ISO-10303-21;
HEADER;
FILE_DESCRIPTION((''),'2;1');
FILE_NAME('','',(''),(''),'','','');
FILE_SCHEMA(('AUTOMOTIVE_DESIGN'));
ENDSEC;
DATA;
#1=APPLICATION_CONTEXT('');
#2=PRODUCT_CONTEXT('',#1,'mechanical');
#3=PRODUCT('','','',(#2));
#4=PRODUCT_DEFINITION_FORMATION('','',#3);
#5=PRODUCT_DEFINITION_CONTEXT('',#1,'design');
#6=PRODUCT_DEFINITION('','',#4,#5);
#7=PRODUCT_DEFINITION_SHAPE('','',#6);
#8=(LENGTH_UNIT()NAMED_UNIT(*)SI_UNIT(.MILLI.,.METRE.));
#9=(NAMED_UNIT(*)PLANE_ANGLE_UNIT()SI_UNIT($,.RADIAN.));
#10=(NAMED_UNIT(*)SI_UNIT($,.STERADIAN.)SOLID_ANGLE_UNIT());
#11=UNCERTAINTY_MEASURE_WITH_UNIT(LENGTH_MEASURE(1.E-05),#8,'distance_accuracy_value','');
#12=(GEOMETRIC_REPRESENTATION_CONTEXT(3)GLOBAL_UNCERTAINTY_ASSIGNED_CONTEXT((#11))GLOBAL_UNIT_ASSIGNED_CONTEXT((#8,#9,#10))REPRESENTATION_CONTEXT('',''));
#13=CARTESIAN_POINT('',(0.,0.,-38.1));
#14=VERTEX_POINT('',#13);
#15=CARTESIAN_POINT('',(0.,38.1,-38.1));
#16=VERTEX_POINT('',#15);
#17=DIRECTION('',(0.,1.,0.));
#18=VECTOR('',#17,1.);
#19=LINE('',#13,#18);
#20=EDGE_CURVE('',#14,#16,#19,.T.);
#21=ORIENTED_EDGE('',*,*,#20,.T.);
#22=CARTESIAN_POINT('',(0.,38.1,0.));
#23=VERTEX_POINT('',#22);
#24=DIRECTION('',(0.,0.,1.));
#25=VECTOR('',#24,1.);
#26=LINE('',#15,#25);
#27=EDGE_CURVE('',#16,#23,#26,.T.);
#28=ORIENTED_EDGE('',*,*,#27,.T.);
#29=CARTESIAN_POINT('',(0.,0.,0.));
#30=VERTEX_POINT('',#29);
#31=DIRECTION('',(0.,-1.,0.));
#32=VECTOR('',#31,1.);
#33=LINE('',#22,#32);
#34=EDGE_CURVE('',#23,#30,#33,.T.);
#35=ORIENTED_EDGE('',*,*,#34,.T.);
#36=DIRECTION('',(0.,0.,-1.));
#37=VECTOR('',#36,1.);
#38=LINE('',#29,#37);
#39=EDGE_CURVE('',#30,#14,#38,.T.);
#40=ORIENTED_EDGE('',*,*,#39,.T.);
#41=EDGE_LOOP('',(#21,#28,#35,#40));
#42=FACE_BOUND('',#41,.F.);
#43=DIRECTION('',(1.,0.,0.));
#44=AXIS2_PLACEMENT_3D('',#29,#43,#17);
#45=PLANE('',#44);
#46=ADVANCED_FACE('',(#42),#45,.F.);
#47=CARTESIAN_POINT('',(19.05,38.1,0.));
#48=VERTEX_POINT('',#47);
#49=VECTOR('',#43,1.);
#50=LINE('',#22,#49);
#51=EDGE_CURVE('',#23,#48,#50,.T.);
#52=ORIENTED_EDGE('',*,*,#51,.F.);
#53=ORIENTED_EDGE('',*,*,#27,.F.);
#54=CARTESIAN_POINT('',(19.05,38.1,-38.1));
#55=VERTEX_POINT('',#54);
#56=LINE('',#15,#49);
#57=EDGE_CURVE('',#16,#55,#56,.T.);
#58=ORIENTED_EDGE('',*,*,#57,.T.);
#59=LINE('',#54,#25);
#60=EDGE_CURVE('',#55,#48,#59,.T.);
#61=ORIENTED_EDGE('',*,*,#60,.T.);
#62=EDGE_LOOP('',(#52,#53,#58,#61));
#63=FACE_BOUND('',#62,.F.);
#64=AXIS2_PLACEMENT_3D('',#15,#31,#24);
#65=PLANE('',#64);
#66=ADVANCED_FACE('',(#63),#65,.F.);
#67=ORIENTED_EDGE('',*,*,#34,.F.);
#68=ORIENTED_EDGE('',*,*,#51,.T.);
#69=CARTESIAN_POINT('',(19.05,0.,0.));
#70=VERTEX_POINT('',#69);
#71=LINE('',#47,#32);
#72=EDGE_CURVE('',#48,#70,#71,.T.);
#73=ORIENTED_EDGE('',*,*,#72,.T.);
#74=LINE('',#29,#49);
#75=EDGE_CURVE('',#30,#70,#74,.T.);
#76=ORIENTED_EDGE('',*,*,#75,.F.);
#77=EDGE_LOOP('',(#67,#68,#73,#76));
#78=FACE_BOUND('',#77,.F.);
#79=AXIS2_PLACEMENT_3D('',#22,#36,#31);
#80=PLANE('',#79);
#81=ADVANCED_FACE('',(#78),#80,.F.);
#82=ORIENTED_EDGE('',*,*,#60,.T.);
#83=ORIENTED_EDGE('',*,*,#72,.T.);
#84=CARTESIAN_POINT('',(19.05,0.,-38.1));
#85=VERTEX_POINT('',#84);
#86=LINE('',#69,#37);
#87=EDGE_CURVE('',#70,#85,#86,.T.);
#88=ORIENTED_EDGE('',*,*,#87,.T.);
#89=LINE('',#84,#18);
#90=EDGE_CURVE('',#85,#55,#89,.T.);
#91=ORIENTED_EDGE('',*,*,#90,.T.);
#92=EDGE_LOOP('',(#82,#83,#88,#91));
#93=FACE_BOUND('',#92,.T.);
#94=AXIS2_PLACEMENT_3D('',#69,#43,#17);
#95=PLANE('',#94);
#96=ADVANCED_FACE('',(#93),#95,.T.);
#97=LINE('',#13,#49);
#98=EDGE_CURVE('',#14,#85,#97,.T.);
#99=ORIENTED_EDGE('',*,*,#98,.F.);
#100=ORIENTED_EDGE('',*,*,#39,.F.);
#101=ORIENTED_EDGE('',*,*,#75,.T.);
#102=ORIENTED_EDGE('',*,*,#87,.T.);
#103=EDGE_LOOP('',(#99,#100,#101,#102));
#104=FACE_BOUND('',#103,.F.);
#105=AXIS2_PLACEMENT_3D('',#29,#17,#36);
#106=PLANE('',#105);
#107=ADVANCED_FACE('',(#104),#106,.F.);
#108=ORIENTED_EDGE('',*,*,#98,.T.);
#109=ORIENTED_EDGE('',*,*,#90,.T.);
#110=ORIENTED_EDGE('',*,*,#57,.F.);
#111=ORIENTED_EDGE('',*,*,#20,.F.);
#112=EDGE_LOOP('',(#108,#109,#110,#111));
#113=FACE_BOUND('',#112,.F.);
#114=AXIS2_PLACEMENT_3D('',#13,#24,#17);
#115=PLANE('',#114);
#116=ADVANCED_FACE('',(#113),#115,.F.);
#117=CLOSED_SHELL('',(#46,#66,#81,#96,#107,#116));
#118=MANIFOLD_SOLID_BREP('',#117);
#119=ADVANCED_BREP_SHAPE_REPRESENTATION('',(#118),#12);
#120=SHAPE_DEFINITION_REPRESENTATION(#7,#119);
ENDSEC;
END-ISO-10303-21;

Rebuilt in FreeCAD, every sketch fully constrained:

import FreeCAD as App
import Part
import Sketcher
from FreeCAD import Vector
Q = App.Units.Quantity


def add_polygon(sketch, points):
    """Adds a closed chain of lines whose ends are joined by coincident constraints."""
    first, n = sketch.GeometryCount, len(points)
    for a, b in zip(points, points[1:] + points[:1]):
        sketch.addGeometry(Part.LineSegment(App.Vector(*a, 0), App.Vector(*b, 0)), False)
    for i in range(n):
        sketch.addConstraint(Sketcher.Constraint("Coincident", first + i, 2, first + (i + 1) % n, 1))

doc = App.newDocument("Part")
body = doc.addObject("PartDesign::Body", "Body")

sketch1 = body.newObject("Sketcher::SketchObject", "Sketch")
sketch1.AttachmentSupport = (doc.getObject("YZ_Plane"), [""])
sketch1.MapMode = "FlatFace"
add_polygon(sketch1, [(38.1, 0), (0, 0), (0, -38.1), (38.1, -38.1)])
sketch1.addConstraint([
    Sketcher.Constraint("Horizontal", 0),
    Sketcher.Constraint("Vertical", 1),
    Sketcher.Constraint("Horizontal", 2),
    Sketcher.Constraint("Vertical", 3),
    Sketcher.Constraint("Coincident", 0, 2, -1, 1),
    Sketcher.Constraint("Equal", 2, 1),
    Sketcher.Constraint("DistanceX", 0, 2, 0, 1, Q("1.5 in")),
])
pad1 = body.newObject("PartDesign::Pad", "Pad")
pad1.Profile = sketch1
pad1.Length = Q("0.75 in")

doc.recompute()
